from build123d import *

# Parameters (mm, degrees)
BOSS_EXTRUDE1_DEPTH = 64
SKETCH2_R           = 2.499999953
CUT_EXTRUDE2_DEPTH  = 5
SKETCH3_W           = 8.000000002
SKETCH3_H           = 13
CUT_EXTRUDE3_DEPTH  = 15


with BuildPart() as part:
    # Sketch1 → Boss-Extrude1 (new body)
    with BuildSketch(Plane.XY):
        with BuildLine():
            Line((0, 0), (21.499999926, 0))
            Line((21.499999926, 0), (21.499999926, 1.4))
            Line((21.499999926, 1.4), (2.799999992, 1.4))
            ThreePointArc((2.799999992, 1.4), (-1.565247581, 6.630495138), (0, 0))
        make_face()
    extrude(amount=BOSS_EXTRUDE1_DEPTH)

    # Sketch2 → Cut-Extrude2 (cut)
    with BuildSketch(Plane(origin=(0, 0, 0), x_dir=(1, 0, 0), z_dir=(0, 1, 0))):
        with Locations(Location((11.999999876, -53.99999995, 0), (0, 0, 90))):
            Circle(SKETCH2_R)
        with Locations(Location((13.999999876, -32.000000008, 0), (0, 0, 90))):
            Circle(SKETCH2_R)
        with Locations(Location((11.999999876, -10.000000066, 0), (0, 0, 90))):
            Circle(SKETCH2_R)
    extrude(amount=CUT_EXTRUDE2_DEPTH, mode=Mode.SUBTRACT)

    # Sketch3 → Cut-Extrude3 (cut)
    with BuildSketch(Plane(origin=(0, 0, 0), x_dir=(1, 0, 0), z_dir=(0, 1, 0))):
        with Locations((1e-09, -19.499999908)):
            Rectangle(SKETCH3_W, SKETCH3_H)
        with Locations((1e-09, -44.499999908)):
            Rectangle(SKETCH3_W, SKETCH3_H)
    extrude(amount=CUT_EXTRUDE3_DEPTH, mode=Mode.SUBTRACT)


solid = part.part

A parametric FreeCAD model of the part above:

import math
import FreeCAD as App
import Part
import Sketcher
from FreeCAD import Vector
Q = App.Units.Quantity


def add_polygon(sketch, points):
    """Adds a closed chain of lines whose ends are joined by coincident constraints."""
    first, n = sketch.GeometryCount, len(points)
    for a, b in zip(points, points[1:] + points[:1]):
        sketch.addGeometry(Part.LineSegment(App.Vector(*a, 0), App.Vector(*b, 0)), False)
    for i in range(n):
        sketch.addConstraint(Sketcher.Constraint("Coincident", first + i, 2, first + (i + 1) % n, 1))

doc = App.newDocument("Part")
body = doc.addObject("PartDesign::Body", "Body")

sketch1 = doc.addObject("Sketcher::SketchObject", "Sketch")
body.addObject(sketch1)
sketch1.AttachmentSupport = (doc.XY_Plane, [""])
sketch1.MapMode = "FlatFace"
sketch1.addGeometry([
    Part.LineSegment(Vector(0, 0, 0), Vector(21.5, 0, 0)),
    Part.LineSegment(Vector(21.5, 0, 0), Vector(21.5, 1.4, 0)),
    Part.LineSegment(Vector(21.5, 1.4, 0), Vector(2.8, 1.4, 0)),
    Part.ArcOfCircle(Part.Circle(Vector(0, 3.5, 0), Vector(0, 0, 1), 3.5), math.radians(-37), math.radians(270)),
], False)
sketch1.addConstraint([
    Sketcher.Constraint("Coincident", 0, 2, 1, 1),
    Sketcher.Constraint("Coincident", 1, 2, 2, 1),
    Sketcher.Constraint("Coincident", 2, 2, 3, 1),
    Sketcher.Constraint("Tangent", 3, 2, 0, 1),
    Sketcher.Constraint("Horizontal", 0),
    Sketcher.Constraint("Vertical", 1),
    Sketcher.Constraint("Horizontal", 2),
    Sketcher.Constraint("Coincident", 3, 2, -1, 1),
    Sketcher.Constraint("Radius", 3, Q("3.5 mm")),
    Sketcher.Constraint("DistanceX", 0, 1, 0, 2, Q("21.5 mm")),
    Sketcher.Constraint("DistanceX", 2, 2, 2, 1, Q("18.7 mm")),
])
pad1 = doc.addObject("PartDesign::Pad", "Pad")
body.addObject(pad1)
pad1.Profile = sketch1
pad1.Length = 64

sketch2 = doc.addObject("Sketcher::SketchObject", "Sketch001")
body.addObject(sketch2)
sketch2.AttachmentSupport = (doc.XZ_Plane, [""])
sketch2.MapMode = "FlatFace"
sketch2.addGeometry([
    Part.Circle(Vector(12, 54, 0), Vector(0, 0, 1), 2.5),
    Part.Circle(Vector(14, 32, 0), Vector(0, 0, 1), 2.5),
    Part.Circle(Vector(12, 10, 0), Vector(0, 0, 1), 2.5),
], False)
sketch2.addConstraint([
    Sketcher.Constraint("Equal", 0, 1),
    Sketcher.Constraint("Equal", 1, 2),
    Sketcher.Constraint("Vertical", 0, 3, 2, 3),
    Sketcher.Constraint("Diameter", 0, Q("5 mm")),
    Sketcher.Constraint("DistanceX", -1, 1, 0, 3, Q("12 mm")),
    Sketcher.Constraint("DistanceY", -1, 1, 0, 3, Q("54 mm")),
    Sketcher.Constraint("DistanceX", -1, 1, 1, 3, Q("14 mm")),
    Sketcher.Constraint("DistanceY", -1, 1, 1, 3, Q("32 mm")),
    Sketcher.Constraint("DistanceY", -1, 1, 2, 3, Q("10 mm")),
])
pocket1 = doc.addObject("PartDesign::Pocket", "Pocket")
body.addObject(pocket1)
pocket1.Profile = sketch2
pocket1.Length = 5

sketch3 = doc.addObject("Sketcher::SketchObject", "Sketch002")
body.addObject(sketch3)
sketch3.AttachmentSupport = (doc.XZ_Plane, [""])
sketch3.MapMode = "FlatFace"
add_polygon(sketch3, [(-4, 13), (-4, 26), (4, 26), (4, 13)])
add_polygon(sketch3, [(-4, 38), (-4, 51), (4, 51), (4, 38)])
sketch3.addConstraint([
    Sketcher.Constraint("Vertical", 0),
    Sketcher.Constraint("Horizontal", 1),
    Sketcher.Constraint("Vertical", 2),
    Sketcher.Constraint("Horizontal", 3),
    Sketcher.Constraint("Vertical", 4),
    Sketcher.Constraint("Horizontal", 5),
    Sketcher.Constraint("Vertical", 6),
    Sketcher.Constraint("Horizontal", 7),
    Sketcher.Constraint("Vertical", 3, 2, 4, 2),
    Sketcher.Constraint("Vertical", 2, 2, 5, 2),
    Sketcher.Constraint("Equal", 2, 4),
    Sketcher.Constraint("DistanceX", 1, 1, 1, 2, Q("8 mm")),
    Sketcher.Constraint("DistanceY", 0, 1, 0, 2, Q("13 mm")),
    Sketcher.Constraint("DistanceX", 0, 2, -1, 1, Q("4 mm")),
    Sketcher.Constraint("DistanceY", -1, 1, 0, 2, Q("26 mm")),
    Sketcher.Constraint("DistanceY", -1, 1, 4, 2, Q("51 mm")),
])
pocket2 = doc.addObject("PartDesign::Pocket", "Pocket001")
body.addObject(pocket2)
pocket2.Profile = sketch3
pocket2.Length = 15

doc.recompute()
